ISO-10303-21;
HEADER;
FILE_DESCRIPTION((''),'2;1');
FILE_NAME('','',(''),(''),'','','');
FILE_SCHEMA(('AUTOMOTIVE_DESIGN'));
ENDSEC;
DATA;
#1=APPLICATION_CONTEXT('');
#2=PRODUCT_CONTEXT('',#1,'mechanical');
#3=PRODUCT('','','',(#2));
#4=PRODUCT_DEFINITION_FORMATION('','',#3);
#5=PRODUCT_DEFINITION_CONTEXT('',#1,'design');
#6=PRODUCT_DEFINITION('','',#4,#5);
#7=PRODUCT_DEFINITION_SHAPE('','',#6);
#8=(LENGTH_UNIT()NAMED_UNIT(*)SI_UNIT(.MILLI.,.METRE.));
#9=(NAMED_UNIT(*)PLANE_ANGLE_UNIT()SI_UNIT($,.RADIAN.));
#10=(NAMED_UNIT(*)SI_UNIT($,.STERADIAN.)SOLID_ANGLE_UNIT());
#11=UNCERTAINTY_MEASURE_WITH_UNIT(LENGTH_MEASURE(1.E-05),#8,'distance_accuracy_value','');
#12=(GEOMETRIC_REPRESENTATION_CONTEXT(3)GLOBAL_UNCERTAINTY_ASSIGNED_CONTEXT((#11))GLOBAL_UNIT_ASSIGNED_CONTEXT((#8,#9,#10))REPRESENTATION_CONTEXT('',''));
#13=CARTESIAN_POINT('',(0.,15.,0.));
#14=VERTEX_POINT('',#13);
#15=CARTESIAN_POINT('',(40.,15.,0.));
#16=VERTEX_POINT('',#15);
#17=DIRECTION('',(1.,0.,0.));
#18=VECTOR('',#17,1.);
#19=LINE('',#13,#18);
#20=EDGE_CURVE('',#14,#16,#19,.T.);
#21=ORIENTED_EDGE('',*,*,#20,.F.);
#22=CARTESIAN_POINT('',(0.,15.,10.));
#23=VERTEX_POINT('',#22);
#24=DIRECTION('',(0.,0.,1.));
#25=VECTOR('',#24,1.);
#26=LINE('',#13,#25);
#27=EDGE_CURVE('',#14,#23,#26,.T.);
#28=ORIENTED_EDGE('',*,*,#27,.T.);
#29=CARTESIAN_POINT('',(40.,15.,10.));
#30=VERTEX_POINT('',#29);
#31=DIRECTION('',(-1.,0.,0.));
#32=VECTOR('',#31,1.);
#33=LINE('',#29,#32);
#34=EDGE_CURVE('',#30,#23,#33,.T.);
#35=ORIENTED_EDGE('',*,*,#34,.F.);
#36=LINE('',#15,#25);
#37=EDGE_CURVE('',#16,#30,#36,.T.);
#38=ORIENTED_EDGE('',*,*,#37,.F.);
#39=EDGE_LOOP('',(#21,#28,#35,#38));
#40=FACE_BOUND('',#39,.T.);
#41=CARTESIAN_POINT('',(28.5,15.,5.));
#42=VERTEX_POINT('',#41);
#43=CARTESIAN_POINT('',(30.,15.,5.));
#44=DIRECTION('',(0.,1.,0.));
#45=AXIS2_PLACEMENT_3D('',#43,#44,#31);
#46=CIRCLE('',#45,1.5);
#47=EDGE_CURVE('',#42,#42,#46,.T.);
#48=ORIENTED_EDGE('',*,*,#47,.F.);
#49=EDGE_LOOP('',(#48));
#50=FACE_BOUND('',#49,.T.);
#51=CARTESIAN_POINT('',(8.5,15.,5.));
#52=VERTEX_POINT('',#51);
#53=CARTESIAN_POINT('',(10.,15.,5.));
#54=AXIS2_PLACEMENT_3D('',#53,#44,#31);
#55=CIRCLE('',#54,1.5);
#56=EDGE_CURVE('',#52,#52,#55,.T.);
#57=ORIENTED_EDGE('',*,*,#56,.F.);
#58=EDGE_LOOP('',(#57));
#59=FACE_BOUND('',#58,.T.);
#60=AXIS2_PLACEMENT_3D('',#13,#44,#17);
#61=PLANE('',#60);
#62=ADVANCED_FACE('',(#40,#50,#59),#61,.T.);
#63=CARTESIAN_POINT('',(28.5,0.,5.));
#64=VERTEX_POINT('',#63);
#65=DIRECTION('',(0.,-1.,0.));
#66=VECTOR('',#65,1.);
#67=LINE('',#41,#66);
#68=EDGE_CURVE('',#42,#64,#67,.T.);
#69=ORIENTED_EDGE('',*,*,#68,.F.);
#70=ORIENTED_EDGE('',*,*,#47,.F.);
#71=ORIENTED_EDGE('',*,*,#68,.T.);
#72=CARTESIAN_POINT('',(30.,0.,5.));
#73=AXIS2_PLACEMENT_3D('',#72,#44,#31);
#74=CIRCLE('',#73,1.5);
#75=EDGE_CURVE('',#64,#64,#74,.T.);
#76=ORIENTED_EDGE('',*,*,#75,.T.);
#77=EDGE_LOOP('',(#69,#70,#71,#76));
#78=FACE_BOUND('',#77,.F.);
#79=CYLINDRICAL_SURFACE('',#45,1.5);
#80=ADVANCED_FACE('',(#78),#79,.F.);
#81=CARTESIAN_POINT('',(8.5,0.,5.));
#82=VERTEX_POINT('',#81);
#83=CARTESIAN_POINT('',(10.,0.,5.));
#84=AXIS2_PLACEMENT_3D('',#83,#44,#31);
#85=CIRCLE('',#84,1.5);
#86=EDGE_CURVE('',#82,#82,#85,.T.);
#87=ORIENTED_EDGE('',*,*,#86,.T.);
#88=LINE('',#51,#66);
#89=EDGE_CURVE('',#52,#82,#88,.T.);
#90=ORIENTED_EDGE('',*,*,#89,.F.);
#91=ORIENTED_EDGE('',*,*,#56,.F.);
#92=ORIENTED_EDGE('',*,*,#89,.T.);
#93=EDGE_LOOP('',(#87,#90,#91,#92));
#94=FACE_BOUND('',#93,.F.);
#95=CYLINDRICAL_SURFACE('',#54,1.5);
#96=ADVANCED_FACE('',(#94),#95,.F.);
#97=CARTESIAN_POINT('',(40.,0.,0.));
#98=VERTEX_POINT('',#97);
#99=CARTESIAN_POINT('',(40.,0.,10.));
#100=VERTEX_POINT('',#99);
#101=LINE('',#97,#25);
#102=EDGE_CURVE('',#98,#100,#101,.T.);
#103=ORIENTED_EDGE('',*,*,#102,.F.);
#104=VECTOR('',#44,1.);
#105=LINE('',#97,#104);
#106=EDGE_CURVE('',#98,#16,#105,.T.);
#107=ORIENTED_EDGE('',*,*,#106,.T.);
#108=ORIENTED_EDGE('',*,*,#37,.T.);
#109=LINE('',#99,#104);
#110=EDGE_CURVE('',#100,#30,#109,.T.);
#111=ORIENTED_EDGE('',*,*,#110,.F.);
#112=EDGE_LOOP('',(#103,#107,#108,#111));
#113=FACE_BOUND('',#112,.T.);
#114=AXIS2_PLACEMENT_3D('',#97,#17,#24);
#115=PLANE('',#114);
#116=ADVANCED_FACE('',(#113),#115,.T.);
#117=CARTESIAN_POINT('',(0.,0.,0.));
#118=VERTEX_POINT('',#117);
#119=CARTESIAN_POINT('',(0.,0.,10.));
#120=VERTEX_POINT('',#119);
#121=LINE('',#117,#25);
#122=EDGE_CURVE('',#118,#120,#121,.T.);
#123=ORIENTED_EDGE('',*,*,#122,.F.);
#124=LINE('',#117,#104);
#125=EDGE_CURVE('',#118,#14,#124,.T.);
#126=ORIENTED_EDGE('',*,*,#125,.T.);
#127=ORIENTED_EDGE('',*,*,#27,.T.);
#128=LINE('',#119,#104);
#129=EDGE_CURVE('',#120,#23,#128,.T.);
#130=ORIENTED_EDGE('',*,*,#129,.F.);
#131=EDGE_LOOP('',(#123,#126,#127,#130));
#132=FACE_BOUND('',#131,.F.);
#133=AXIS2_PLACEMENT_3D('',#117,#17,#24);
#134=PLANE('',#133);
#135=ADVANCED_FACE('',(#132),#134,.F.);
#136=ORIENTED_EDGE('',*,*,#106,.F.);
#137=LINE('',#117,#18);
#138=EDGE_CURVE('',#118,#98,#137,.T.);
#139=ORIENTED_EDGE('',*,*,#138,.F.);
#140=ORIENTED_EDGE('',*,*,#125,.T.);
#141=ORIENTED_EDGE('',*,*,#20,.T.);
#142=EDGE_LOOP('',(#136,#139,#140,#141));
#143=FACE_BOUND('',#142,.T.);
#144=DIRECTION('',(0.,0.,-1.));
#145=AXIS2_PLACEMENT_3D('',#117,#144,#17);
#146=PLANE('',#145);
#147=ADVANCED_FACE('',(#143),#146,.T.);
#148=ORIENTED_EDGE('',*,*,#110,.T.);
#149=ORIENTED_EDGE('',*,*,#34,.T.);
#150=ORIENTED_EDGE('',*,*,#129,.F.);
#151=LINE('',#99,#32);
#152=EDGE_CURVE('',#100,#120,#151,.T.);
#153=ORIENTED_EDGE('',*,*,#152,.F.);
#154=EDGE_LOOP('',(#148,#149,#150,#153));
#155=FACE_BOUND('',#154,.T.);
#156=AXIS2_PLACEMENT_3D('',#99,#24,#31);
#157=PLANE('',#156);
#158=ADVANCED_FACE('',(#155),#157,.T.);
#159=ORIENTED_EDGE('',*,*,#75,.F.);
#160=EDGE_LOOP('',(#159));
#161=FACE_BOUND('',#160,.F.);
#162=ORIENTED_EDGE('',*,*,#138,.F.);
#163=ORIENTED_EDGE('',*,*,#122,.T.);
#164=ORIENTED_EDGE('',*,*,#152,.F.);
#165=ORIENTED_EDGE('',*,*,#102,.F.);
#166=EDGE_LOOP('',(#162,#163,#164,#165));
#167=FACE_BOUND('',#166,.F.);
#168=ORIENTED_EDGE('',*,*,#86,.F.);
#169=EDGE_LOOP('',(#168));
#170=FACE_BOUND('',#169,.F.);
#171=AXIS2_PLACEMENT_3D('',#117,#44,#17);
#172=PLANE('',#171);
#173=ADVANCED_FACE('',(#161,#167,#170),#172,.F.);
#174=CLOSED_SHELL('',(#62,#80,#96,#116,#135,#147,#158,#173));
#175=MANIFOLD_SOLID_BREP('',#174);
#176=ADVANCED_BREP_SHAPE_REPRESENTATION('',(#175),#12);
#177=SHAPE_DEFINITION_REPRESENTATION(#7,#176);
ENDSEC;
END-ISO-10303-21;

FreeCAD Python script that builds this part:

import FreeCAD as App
import Part
import Sketcher
from FreeCAD import Vector

doc = App.newDocument("Part")
body = doc.addObject("PartDesign::Body", "Body")

# Sketch on XZ plane
sketch1 = body.newObject("Sketcher::SketchObject", "Sketch")
sketch1.AttachmentSupport = (doc.getObject("XZ_Plane"), [""])
sketch1.MapMode = "FlatFace"
sketch1.addGeometry(Part.LineSegment(Vector(40, 0, 0), Vector(0, 0, 0)), False)
sketch1.addGeometry(Part.LineSegment(Vector(0, 0, 0), Vector(0, 10, 0)), False)
sketch1.addGeometry(Part.LineSegment(Vector(0, 10, 0), Vector(40, 10, 0)), False)
sketch1.addGeometry(Part.LineSegment(Vector(40, 10, 0), Vector(40, 0, 0)), False)
sketch1.addConstraint(Sketcher.Constraint("Coincident", 0, 2, 1, 1))
sketch1.addConstraint(Sketcher.Constraint("Coincident", 1, 2, 2, 1))
sketch1.addConstraint(Sketcher.Constraint("Coincident", 2, 2, 3, 1))
sketch1.addConstraint(Sketcher.Constraint("Coincident", 3, 2, 0, 1))
sketch1.addConstraint(Sketcher.Constraint("Horizontal", 0))
sketch1.addConstraint(Sketcher.Constraint("Vertical", 1))
sketch1.addConstraint(Sketcher.Constraint("Horizontal", 2))
sketch1.addConstraint(Sketcher.Constraint("Vertical", 3))
sketch1.addConstraint(Sketcher.Constraint("Coincident", 0, 2, -1, 1))
sketch1.addConstraint(Sketcher.Constraint("DistanceX", 0, 2, 0, 1, 40.0))
sketch1.addConstraint(Sketcher.Constraint("DistanceY", 1, 1, 1, 2, 10.0))
pad1 = body.newObject("PartDesign::Pad", "Pad")
pad1.Profile = sketch1
pad1.Length = 15
pad1.Reversed = True

# Sketch on XZ plane
sketch2 = body.newObject("Sketcher::SketchObject", "Sketch001")
sketch2.AttachmentSupport = (doc.getObject("XZ_Plane"), [""])
sketch2.MapMode = "FlatFace"
sketch2.AttachmentOffset = App.Placement(Vector(0, 0, -15), App.Rotation())
sketch2.addGeometry(Part.Circle(Vector(10, 5, 0), Vector(0, 0, 1), 1.5), False)
sketch2.addGeometry(Part.Circle(Vector(30, 5, 0), Vector(0, 0, 1), 1.5), False)
sketch2.addConstraint(Sketcher.Constraint("Equal", 0, 1))
sketch2.addConstraint(Sketcher.Constraint("Horizontal", 0, 3, 1, 3))
sketch2.addConstraint(Sketcher.Constraint("Diameter", 0, 3.0))
sketch2.addConstraint(Sketcher.Constraint("DistanceX", -1, 1, 0, 3, 10.0))
sketch2.addConstraint(Sketcher.Constraint("DistanceY", -1, 1, 0, 3, 5.0))
sketch2.addConstraint(Sketcher.Constraint("DistanceX", -1, 1, 1, 3, 30.0))
pocket1 = body.newObject("PartDesign::Pocket", "Pocket")
pocket1.Profile = sketch2
pocket1.Length = 40
pocket1.Reversed = True

doc.recompute()
